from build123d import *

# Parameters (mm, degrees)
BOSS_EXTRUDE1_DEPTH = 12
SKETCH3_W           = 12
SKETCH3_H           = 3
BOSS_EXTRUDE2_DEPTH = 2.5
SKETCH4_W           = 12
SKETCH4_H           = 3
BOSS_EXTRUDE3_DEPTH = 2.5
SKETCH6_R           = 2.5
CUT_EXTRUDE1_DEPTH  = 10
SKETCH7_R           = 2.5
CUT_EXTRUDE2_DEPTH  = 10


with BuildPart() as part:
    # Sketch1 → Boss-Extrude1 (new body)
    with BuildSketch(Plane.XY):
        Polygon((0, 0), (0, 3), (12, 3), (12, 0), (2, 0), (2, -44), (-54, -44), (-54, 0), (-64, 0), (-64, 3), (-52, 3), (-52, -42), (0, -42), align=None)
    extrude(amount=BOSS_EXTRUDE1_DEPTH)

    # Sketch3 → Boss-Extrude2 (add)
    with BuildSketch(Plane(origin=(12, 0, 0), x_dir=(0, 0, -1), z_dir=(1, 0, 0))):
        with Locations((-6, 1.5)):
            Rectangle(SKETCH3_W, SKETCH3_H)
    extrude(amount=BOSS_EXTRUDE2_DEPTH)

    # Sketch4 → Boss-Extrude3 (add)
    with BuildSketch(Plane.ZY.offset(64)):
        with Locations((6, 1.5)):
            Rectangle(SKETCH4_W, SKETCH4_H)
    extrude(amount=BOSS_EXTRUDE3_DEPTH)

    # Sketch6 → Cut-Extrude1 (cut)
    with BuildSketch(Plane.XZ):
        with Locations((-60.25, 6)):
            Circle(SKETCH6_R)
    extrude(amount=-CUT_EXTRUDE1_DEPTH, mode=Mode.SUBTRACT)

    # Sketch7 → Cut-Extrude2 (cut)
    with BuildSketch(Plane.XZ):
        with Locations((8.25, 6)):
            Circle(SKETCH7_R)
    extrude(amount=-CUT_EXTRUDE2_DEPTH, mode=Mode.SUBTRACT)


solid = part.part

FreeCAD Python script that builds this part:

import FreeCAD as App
import Part
import Sketcher
from FreeCAD import Vector
Q = App.Units.Quantity

doc = App.newDocument("Part")
body = doc.addObject("PartDesign::Body", "Body")

sketch1 = body.newObject("Sketcher::SketchObject", "Sketch")
sketch1.AttachmentSupport = (doc.getObject("XY_Plane"), [""])
sketch1.MapMode = "FlatFace"
sketch1.addGeometry(Part.LineSegment(Vector(0, 3, 0), Vector(0, -42, 0)), False)
sketch1.addGeometry(Part.LineSegment(Vector(0, -42, 0), Vector(-52, -42, 0)), False)
sketch1.addGeometry(Part.LineSegment(Vector(-52, -42, 0), Vector(-52, 3, 0)), False)
sketch1.addGeometry(Part.LineSegment(Vector(-52, 3, 0), Vector(-64, 3, 0)), False)
sketch1.addGeometry(Part.LineSegment(Vector(-64, 3, 0), Vector(-64, 0, 0)), False)
sketch1.addGeometry(Part.LineSegment(Vector(-64, 0, 0), Vector(-54, 0, 0)), False)
sketch1.addGeometry(Part.LineSegment(Vector(-54, 0, 0), Vector(-54, -44, 0)), False)
sketch1.addGeometry(Part.LineSegment(Vector(-54, -44, 0), Vector(2, -44, 0)), False)
sketch1.addGeometry(Part.LineSegment(Vector(2, -44, 0), Vector(2, 0, 0)), False)
sketch1.addGeometry(Part.LineSegment(Vector(2, 0, 0), Vector(12, 0, 0)), False)
sketch1.addGeometry(Part.LineSegment(Vector(12, 0, 0), Vector(12, 3, 0)), False)
sketch1.addGeometry(Part.LineSegment(Vector(12, 3, 0), Vector(0, 3, 0)), False)
sketch1.addConstraint(Sketcher.Constraint("Coincident", 0, 2, 1, 1))
sketch1.addConstraint(Sketcher.Constraint("Coincident", 1, 2, 2, 1))
sketch1.addConstraint(Sketcher.Constraint("Coincident", 2, 2, 3, 1))
sketch1.addConstraint(Sketcher.Constraint("Coincident", 3, 2, 4, 1))
sketch1.addConstraint(Sketcher.Constraint("Coincident", 4, 2, 5, 1))
sketch1.addConstraint(Sketcher.Constraint("Coincident", 5, 2, 6, 1))
sketch1.addConstraint(Sketcher.Constraint("Coincident", 6, 2, 7, 1))
sketch1.addConstraint(Sketcher.Constraint("Coincident", 7, 2, 8, 1))
sketch1.addConstraint(Sketcher.Constraint("Coincident", 8, 2, 9, 1))
sketch1.addConstraint(Sketcher.Constraint("Coincident", 9, 2, 10, 1))
sketch1.addConstraint(Sketcher.Constraint("Coincident", 10, 2, 11, 1))
sketch1.addConstraint(Sketcher.Constraint("Coincident", 11, 2, 0, 1))
sketch1.addConstraint(Sketcher.Constraint("Vertical", 0))
sketch1.addConstraint(Sketcher.Constraint("Horizontal", 1))
sketch1.addConstraint(Sketcher.Constraint("Vertical", 2))
sketch1.addConstraint(Sketcher.Constraint("Horizontal", 3))
sketch1.addConstraint(Sketcher.Constraint("Vertical", 4))
sketch1.addConstraint(Sketcher.Constraint("Horizontal", 5))
sketch1.addConstraint(Sketcher.Constraint("Vertical", 6))
sketch1.addConstraint(Sketcher.Constraint("Horizontal", 7))
sketch1.addConstraint(Sketcher.Constraint("Vertical", 8))
sketch1.addConstraint(Sketcher.Constraint("Horizontal", 9))
sketch1.addConstraint(Sketcher.Constraint("Vertical", 10))
sketch1.addConstraint(Sketcher.Constraint("Horizontal", 11))
sketch1.addConstraint(Sketcher.Constraint("PointOnObject", 0, 2, -2))
sketch1.addConstraint(Sketcher.Constraint("PointOnObject", 4, 2, -1))
sketch1.addConstraint(Sketcher.Constraint("PointOnObject", 8, 2, -1))
sketch1.addConstraint(Sketcher.Constraint("Horizontal", 3, 2, 10, 2))
sketch1.addConstraint(Sketcher.Constraint("Equal", 5, 9))
sketch1.addConstraint(Sketcher.Constraint("Equal", 3, 11))
sketch1.addConstraint(Sketcher.Constraint("DistanceX", 1, 2, 1, 1, Q("52 mm")))
sketch1.addConstraint(Sketcher.Constraint("DistanceX", 3, 2, 3, 1, Q("12 mm")))
sketch1.addConstraint(Sketcher.Constraint("DistanceX", 5, 1, 5, 2, Q("10 mm")))
sketch1.addConstraint(Sketcher.Constraint("DistanceY", 0, 2, 0, 1, Q("45 mm")))
sketch1.addConstraint(Sketcher.Constraint("DistanceY", 4, 2, 4, 1, Q("3 mm")))
sketch1.addConstraint(Sketcher.Constraint("DistanceY", 6, 2, 6, 1, Q("44 mm")))
pad1 = body.newObject("PartDesign::Pad", "Pad")
pad1.Profile = sketch1
pad1.Length = 12

sketch2 = body.newObject("Sketcher::SketchObject", "Sketch001")
sketch2.AttachmentSupport = (doc.getObject("YZ_Plane"), [""])
sketch2.MapMode = "FlatFace"
sketch2.AttachmentOffset = App.Placement(Vector(0, 0, 12), App.Rotation())
sketch2.addGeometry(Part.LineSegment(Vector(3, 12, 0), Vector(0, 12, 0)), False)
sketch2.addGeometry(Part.LineSegment(Vector(0, 12, 0), Vector(0, 0, 0)), False)
sketch2.addGeometry(Part.LineSegment(Vector(0, 0, 0), Vector(3, 0, 0)), False)
sketch2.addGeometry(Part.LineSegment(Vector(3, 0, 0), Vector(3, 12, 0)), False)
sketch2.addConstraint(Sketcher.Constraint("Coincident", 0, 2, 1, 1))
sketch2.addConstraint(Sketcher.Constraint("Coincident", 1, 2, 2, 1))
sketch2.addConstraint(Sketcher.Constraint("Coincident", 2, 2, 3, 1))
sketch2.addConstraint(Sketcher.Constraint("Coincident", 3, 2, 0, 1))
sketch2.addConstraint(Sketcher.Constraint("Horizontal", 0))
sketch2.addConstraint(Sketcher.Constraint("Vertical", 1))
sketch2.addConstraint(Sketcher.Constraint("Horizontal", 2))
sketch2.addConstraint(Sketcher.Constraint("Vertical", 3))
sketch2.addConstraint(Sketcher.Constraint("Coincident", 1, 2, -1, 1))
sketch2.addConstraint(Sketcher.Constraint("DistanceX", 0, 2, 0, 1, Q("3 mm")))
sketch2.addConstraint(Sketcher.Constraint("DistanceY", 1, 2, 1, 1, Q("12 mm")))
pad2 = body.newObject("PartDesign::Pad", "Pad001")
pad2.Profile = sketch2
pad2.Length = 2.5

sketch3 = body.newObject("Sketcher::SketchObject", "Sketch002")
sketch3.AttachmentSupport = (doc.getObject("YZ_Plane"), [""])
sketch3.MapMode = "FlatFace"
sketch3.AttachmentOffset = App.Placement(Vector(0, 0, -64), App.Rotation())
sketch3.addGeometry(Part.LineSegment(Vector(3, 0, 0), Vector(0, 0, 0)), False)
sketch3.addGeometry(Part.LineSegment(Vector(0, 0, 0), Vector(0, 12, 0)), False)
sketch3.addGeometry(Part.LineSegment(Vector(0, 12, 0), Vector(3, 12, 0)), False)
sketch3.addGeometry(Part.LineSegment(Vector(3, 12, 0), Vector(3, 0, 0)), False)
sketch3.addConstraint(Sketcher.Constraint("Coincident", 0, 2, 1, 1))
sketch3.addConstraint(Sketcher.Constraint("Coincident", 1, 2, 2, 1))
sketch3.addConstraint(Sketcher.Constraint("Coincident", 2, 2, 3, 1))
sketch3.addConstraint(Sketcher.Constraint("Coincident", 3, 2, 0, 1))
sketch3.addConstraint(Sketcher.Constraint("Horizontal", 0))
sketch3.addConstraint(Sketcher.Constraint("Vertical", 1))
sketch3.addConstraint(Sketcher.Constraint("Horizontal", 2))
sketch3.addConstraint(Sketcher.Constraint("Vertical", 3))
sketch3.addConstraint(Sketcher.Constraint("Coincident", 0, 2, -1, 1))
sketch3.addConstraint(Sketcher.Constraint("DistanceX", 0, 2, 0, 1, Q("3 mm")))
sketch3.addConstraint(Sketcher.Constraint("DistanceY", 1, 1, 1, 2, Q("12 mm")))
pad3 = body.newObject("PartDesign::Pad", "Pad002")
pad3.Profile = sketch3
pad3.Length = 2.5
pad3.Reversed = True

sketch4 = body.newObject("Sketcher::SketchObject", "Sketch003")
sketch4.AttachmentSupport = (doc.getObject("XZ_Plane"), [""])
sketch4.MapMode = "FlatFace"
sketch4.addGeometry(Part.Circle(Vector(-60.2, 6, 0), Vector(0, 0, 1), 2.5), False)
sketch4.addConstraint(Sketcher.Constraint("Diameter", 0, Q("5 mm")))
sketch4.addConstraint(Sketcher.Constraint("DistanceY", -1, 1, 0, 3, Q("6 mm")))
sketch4.addConstraint(Sketcher.Constraint("DistanceX", 0, 3, -1, 1, Q("60.25 mm")))
pocket1 = body.newObject("PartDesign::Pocket", "Pocket")
pocket1.Profile = sketch4
pocket1.Length = 10

sketch5 = body.newObject("Sketcher::SketchObject", "Sketch004")
sketch5.AttachmentSupport = (doc.getObject("XZ_Plane"), [""])
sketch5.MapMode = "FlatFace"
sketch5.addGeometry(Part.Circle(Vector(8.2, 6, 0), Vector(0, 0, 1), 2.5), False)
sketch5.addConstraint(Sketcher.Constraint("Diameter", 0, Q("5 mm")))
sketch5.addConstraint(Sketcher.Constraint("DistanceY", -1, 1, 0, 3, Q("6 mm")))
sketch5.addConstraint(Sketcher.Constraint("DistanceX", -1, 1, 0, 3, Q("8.25 mm")))
pocket2 = body.newObject("PartDesign::Pocket", "Pocket001")
pocket2.Profile = sketch5
pocket2.Length = 10

doc.recompute()
